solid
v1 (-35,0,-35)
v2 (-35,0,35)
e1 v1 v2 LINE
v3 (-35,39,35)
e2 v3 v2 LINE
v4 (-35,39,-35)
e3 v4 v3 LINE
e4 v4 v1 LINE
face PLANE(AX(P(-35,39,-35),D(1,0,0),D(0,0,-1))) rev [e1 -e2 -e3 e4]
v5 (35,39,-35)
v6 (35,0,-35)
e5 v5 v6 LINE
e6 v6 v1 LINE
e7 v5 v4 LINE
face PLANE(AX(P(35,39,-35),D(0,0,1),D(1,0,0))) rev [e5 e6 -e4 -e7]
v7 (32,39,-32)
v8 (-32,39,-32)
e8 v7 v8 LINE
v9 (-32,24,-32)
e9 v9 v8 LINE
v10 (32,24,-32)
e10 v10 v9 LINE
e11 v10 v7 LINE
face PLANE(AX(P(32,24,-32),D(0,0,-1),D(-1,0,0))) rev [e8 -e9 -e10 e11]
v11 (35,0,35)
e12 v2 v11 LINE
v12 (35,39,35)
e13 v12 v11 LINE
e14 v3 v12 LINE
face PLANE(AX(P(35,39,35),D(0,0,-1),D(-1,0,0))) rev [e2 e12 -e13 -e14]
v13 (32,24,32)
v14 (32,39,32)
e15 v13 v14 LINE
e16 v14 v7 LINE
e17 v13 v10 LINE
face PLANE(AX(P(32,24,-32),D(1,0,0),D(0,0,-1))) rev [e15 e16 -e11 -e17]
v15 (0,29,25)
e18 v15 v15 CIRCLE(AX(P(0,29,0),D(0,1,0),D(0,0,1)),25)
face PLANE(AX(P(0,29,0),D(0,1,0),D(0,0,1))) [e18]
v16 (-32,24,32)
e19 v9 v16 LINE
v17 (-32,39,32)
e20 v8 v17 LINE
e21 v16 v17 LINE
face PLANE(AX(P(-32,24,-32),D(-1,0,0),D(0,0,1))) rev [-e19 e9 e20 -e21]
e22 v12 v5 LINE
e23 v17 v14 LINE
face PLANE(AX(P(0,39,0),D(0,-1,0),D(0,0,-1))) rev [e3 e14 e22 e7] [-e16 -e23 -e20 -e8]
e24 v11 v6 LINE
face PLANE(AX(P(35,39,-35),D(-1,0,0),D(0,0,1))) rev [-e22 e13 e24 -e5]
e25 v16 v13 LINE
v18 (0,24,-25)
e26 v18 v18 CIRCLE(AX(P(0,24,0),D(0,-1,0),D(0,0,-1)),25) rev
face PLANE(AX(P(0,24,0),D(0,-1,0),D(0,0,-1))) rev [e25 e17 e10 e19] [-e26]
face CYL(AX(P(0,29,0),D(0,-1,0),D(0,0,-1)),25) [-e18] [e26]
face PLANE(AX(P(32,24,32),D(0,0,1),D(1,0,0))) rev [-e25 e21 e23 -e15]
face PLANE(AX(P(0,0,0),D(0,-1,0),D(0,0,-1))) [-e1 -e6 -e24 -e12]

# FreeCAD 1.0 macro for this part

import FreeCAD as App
import Part
import Sketcher
from FreeCAD import Vector


def add_polygon(sketch, points):
    """Adds a closed chain of lines whose ends are joined by coincident constraints."""
    first, n = sketch.GeometryCount, len(points)
    for a, b in zip(points, points[1:] + points[:1]):
        sketch.addGeometry(Part.LineSegment(App.Vector(*a, 0), App.Vector(*b, 0)), False)
    for i in range(n):
        sketch.addConstraint(Sketcher.Constraint("Coincident", first + i, 2, first + (i + 1) % n, 1))

doc = App.newDocument("Part")
body = doc.addObject("PartDesign::Body", "Body")

# Sketch on XZ plane
sketch1 = body.newObject("Sketcher::SketchObject", "Sketch")
sketch1.AttachmentSupport = (doc.getObject("XZ_Plane"), [""])
sketch1.MapMode = "FlatFace"
add_polygon(sketch1, [(-35, -35), (-35, 35), (35, 35), (35, -35)])  # lines 0-3
sketch1.addConstraint(Sketcher.Constraint("Vertical", 0))
sketch1.addConstraint(Sketcher.Constraint("Horizontal", 1))
sketch1.addConstraint(Sketcher.Constraint("Vertical", 2))
sketch1.addConstraint(Sketcher.Constraint("Horizontal", 3))
sketch1.addConstraint(Sketcher.Constraint("Symmetric", 0, 2, 2, 2, -1, 1))
sketch1.addConstraint(Sketcher.Constraint("Equal", 3, 0))
sketch1.addConstraint(Sketcher.Constraint("DistanceX", 1, 1, 1, 2, 70.0))
pad1 = body.newObject("PartDesign::Pad", "Pad")
pad1.Profile = sketch1
pad1.Length = 39
pad1.Reversed = True

# Sketch on XZ plane
sketch2 = body.newObject("Sketcher::SketchObject", "Sketch001")
sketch2.AttachmentSupport = (doc.getObject("XZ_Plane"), [""])
sketch2.MapMode = "FlatFace"
sketch2.AttachmentOffset = App.Placement(Vector(0, 0, -39), App.Rotation())
add_polygon(sketch2, [(-32, -32), (-32, 32), (32, 32), (32, -32)])  # lines 0-3
sketch2.addConstraint(Sketcher.Constraint("Vertical", 0))
sketch2.addConstraint(Sketcher.Constraint("Horizontal", 1))
sketch2.addConstraint(Sketcher.Constraint("Vertical", 2))
sketch2.addConstraint(Sketcher.Constraint("Horizontal", 3))
sketch2.addConstraint(Sketcher.Constraint("Symmetric", 0, 2, 2, 2, -1, 1))
sketch2.addConstraint(Sketcher.Constraint("Equal", 3, 0))
sketch2.addConstraint(Sketcher.Constraint("DistanceX", 1, 1, 1, 2, 64.0))
pocket1 = body.newObject("PartDesign::Pocket", "Pocket")
pocket1.Profile = sketch2
pocket1.Length = 15
pocket1.Reversed = True

# Sketch on XZ plane
sketch3 = body.newObject("Sketcher::SketchObject", "Sketch002")
sketch3.AttachmentSupport = (doc.getObject("XZ_Plane"), [""])
sketch3.MapMode = "FlatFace"
sketch3.AttachmentOffset = App.Placement(Vector(0, 0, -24), App.Rotation())
sketch3.addGeometry(Part.Circle(Vector(0, 0, 0), Vector(0, 0, 1), 25), False)
sketch3.addConstraint(Sketcher.Constraint("Coincident", 0, 3, -1, 1))
sketch3.addConstraint(Sketcher.Constraint("Diameter", 0, 50.0))
pad2 = body.newObject("PartDesign::Pad", "Pad001")
pad2.Profile = sketch3
pad2.Length = 5
pad2.Reversed = True

doc.recompute()
